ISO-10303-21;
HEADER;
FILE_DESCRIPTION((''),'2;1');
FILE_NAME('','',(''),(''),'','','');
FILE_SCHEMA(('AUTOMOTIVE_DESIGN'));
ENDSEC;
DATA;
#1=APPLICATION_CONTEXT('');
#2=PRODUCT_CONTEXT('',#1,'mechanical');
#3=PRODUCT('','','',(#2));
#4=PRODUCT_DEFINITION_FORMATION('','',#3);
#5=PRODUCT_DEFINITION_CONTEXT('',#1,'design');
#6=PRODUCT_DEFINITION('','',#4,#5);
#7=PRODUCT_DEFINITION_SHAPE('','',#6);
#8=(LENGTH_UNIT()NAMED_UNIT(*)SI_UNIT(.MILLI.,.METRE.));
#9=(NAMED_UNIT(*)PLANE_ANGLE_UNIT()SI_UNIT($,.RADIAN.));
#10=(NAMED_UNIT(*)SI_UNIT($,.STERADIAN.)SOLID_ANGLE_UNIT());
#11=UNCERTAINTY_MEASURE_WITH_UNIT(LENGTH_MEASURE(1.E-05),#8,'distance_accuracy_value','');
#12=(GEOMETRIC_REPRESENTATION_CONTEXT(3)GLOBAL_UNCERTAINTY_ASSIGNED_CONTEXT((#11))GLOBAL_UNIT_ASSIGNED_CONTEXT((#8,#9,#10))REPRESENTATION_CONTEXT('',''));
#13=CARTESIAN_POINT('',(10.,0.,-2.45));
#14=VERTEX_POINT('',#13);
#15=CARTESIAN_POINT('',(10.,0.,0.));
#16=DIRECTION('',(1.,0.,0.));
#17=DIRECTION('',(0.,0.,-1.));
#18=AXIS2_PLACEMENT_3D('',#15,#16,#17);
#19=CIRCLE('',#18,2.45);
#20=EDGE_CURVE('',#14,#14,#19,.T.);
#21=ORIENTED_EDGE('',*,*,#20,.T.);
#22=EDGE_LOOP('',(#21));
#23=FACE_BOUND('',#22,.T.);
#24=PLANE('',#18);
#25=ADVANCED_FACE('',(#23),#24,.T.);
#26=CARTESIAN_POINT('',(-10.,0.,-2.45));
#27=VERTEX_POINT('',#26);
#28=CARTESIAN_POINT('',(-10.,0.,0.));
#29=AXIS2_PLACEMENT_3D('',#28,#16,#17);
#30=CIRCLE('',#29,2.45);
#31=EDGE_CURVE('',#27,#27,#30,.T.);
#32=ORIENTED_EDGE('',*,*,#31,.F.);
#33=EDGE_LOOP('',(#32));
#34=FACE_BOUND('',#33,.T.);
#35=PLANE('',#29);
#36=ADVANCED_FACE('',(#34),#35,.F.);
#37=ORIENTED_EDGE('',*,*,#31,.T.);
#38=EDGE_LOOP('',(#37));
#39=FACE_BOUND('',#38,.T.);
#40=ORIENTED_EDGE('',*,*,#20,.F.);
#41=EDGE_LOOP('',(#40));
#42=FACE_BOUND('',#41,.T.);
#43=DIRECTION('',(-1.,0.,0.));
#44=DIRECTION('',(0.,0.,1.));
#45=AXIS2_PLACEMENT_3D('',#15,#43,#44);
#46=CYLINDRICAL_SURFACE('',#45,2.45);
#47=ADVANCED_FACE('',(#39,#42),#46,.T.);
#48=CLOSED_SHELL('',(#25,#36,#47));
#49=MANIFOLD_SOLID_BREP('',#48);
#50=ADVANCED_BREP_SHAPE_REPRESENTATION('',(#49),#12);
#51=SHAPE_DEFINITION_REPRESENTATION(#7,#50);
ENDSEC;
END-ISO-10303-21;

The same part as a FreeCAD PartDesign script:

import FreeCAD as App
import Part
import Sketcher
from FreeCAD import Vector
Q = App.Units.Quantity

doc = App.newDocument("Part")
body = doc.addObject("PartDesign::Body", "Body")

# Sketch on YZ plane
sketch1 = body.newObject("Sketcher::SketchObject", "Sketch")
sketch1.AttachmentSupport = (doc.getObject("YZ_Plane"), [""])
sketch1.MapMode = "FlatFace"
sketch1.addGeometry(Part.Circle(Vector(0, 0, 0), Vector(0, 0, 1), 2.5), False)
sketch1.addConstraint(Sketcher.Constraint("Coincident", 0, 3, -1, 1))
sketch1.addConstraint(Sketcher.Constraint("Diameter", 0, Q("4.9 mm")))
pad1 = body.newObject("PartDesign::Pad", "Pad")
pad1.Profile = sketch1
pad1.Length = 20
pad1.Midplane = True

doc.recompute()
